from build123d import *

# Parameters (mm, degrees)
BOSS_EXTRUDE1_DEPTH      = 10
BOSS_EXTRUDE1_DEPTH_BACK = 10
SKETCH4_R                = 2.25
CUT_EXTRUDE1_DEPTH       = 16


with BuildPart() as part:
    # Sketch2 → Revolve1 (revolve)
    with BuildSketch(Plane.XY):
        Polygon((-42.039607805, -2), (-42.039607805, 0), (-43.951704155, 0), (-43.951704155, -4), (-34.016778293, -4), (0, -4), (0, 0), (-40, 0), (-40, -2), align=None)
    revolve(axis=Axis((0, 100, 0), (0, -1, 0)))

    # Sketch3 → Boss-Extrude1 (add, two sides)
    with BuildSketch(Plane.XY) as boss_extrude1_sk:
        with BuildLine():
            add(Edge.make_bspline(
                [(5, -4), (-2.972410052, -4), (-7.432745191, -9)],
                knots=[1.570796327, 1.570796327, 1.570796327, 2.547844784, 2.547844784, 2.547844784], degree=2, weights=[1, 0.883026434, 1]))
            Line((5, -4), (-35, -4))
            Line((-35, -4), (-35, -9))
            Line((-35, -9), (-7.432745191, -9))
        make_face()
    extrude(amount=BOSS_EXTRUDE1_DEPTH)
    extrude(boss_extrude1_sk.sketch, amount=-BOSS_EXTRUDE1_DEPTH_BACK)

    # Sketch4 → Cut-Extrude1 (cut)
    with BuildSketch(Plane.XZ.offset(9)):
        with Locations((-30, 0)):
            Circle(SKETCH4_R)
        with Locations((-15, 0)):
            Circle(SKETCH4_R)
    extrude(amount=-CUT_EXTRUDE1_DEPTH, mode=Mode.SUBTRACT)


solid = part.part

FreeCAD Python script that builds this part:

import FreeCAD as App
import Part
import Sketcher
from FreeCAD import Vector

doc = App.newDocument("Part")
body = doc.addObject("PartDesign::Body", "Body")

# Sketch on XY plane
sketch1 = body.newObject("Sketcher::SketchObject", "Sketch")
sketch1.AttachmentSupport = (doc.getObject("XY_Plane"), [""])
sketch1.MapMode = "FlatFace"
sketch1.addGeometry(Part.LineSegment(Vector(-42.039608, -2, 0), Vector(-42.039608, 0, 0)), False)
sketch1.addGeometry(Part.LineSegment(Vector(-42.039608, 0, 0), Vector(-43.951704, 0, 0)), False)
sketch1.addGeometry(Part.LineSegment(Vector(-43.951704, 0, 0), Vector(-43.951704, -4, 0)), False)
sketch1.addGeometry(Part.LineSegment(Vector(-43.951704, -4, 0), Vector(0, -4, 0)), False)
sketch1.addGeometry(Part.LineSegment(Vector(0, -4, 0), Vector(0, 0, 0)), False)
sketch1.addGeometry(Part.LineSegment(Vector(0, 0, 0), Vector(-40, 0, 0)), False)
sketch1.addGeometry(Part.LineSegment(Vector(-40, 0, 0), Vector(-40, -2, 0)), False)
sketch1.addGeometry(Part.LineSegment(Vector(-40, -2, 0), Vector(-42.039608, -2, 0)), False)
sketch1.addConstraint(Sketcher.Constraint("Coincident", 0, 2, 1, 1))
sketch1.addConstraint(Sketcher.Constraint("Coincident", 1, 2, 2, 1))
sketch1.addConstraint(Sketcher.Constraint("Coincident", 2, 2, 3, 1))
sketch1.addConstraint(Sketcher.Constraint("Coincident", 3, 2, 4, 1))
sketch1.addConstraint(Sketcher.Constraint("Coincident", 4, 2, 5, 1))
sketch1.addConstraint(Sketcher.Constraint("Coincident", 5, 2, 6, 1))
sketch1.addConstraint(Sketcher.Constraint("Coincident", 6, 2, 7, 1))
sketch1.addConstraint(Sketcher.Constraint("Coincident", 7, 2, 0, 1))
sketch1.addConstraint(Sketcher.Constraint("Vertical", 0))
sketch1.addConstraint(Sketcher.Constraint("Horizontal", 1))
sketch1.addConstraint(Sketcher.Constraint("Vertical", 2))
sketch1.addConstraint(Sketcher.Constraint("Horizontal", 3))
sketch1.addConstraint(Sketcher.Constraint("Vertical", 4))
sketch1.addConstraint(Sketcher.Constraint("Horizontal", 5))
sketch1.addConstraint(Sketcher.Constraint("Vertical", 6))
sketch1.addConstraint(Sketcher.Constraint("Horizontal", 7))
sketch1.addConstraint(Sketcher.Constraint("Coincident", 4, 2, -1, 1))
sketch1.addConstraint(Sketcher.Constraint("PointOnObject", 0, 2, -1))
sketch1.addConstraint(Sketcher.Constraint("DistanceX", 5, 2, 5, 1, 40.0))
sketch1.addConstraint(Sketcher.Constraint("DistanceY", 0, 1, 0, 2, 2.0))
sketch1.addConstraint(Sketcher.Constraint("DistanceY", 2, 2, 2, 1, 4.0))
sketch1.addConstraint(Sketcher.Constraint("DistanceX", 1, 2, 1, 1, 1.912096))
sketch1.addConstraint(Sketcher.Constraint("DistanceX", 3, 1, 3, 2, 43.951704))
revolution = body.newObject("PartDesign::Revolution", "Revolution")
revolution.Profile = sketch1
revolution.ReferenceAxis = (sketch1, ["V_Axis"])
revolution.Angle = 360

# Sketch on XY plane
sketch2 = body.newObject("Sketcher::SketchObject", "Sketch001")
sketch2.AttachmentSupport = (doc.getObject("XY_Plane"), [""])
sketch2.MapMode = "FlatFace"
sketch2.addGeometry(Part.BSplineCurve([Vector(5, -4, 0), Vector(-2.97241, -4, 0), Vector(-7.432745, -9, 0)], [3, 3], [1.570796327, 2.547844784], False, 2, [1, 0.883026434, 1], False), False)
sketch2.addGeometry(Part.LineSegment(Vector(5, -4, 0), Vector(-35, -4, 0)), False)
sketch2.addGeometry(Part.LineSegment(Vector(-35, -4, 0), Vector(-35, -9, 0)), False)
sketch2.addGeometry(Part.LineSegment(Vector(-35, -9, 0), Vector(-7.432745, -9, 0)), False)
sketch2.addConstraint(Sketcher.Constraint("Block", 0))
sketch2.addConstraint(Sketcher.Constraint("Coincident", 0, 1, 1, 1))
sketch2.addConstraint(Sketcher.Constraint("Coincident", 1, 2, 2, 1))
sketch2.addConstraint(Sketcher.Constraint("Coincident", 2, 2, 3, 1))
sketch2.addConstraint(Sketcher.Constraint("Coincident", 3, 2, 0, 2))
sketch2.addConstraint(Sketcher.Constraint("Horizontal", 1))
sketch2.addConstraint(Sketcher.Constraint("Vertical", 2))
sketch2.addConstraint(Sketcher.Constraint("Horizontal", 3))
sketch2.addConstraint(Sketcher.Constraint("DistanceX", 1, 2, 1, 1, 40.0))
pad1 = body.newObject("PartDesign::Pad", "Pad")
pad1.Profile = sketch2
pad1.Type = "TwoLengths"
pad1.Length = 10
pad1.Length2 = 10

# Sketch on XZ plane
sketch3 = body.newObject("Sketcher::SketchObject", "Sketch002")
sketch3.AttachmentSupport = (doc.getObject("XZ_Plane"), [""])
sketch3.MapMode = "FlatFace"
sketch3.AttachmentOffset = App.Placement(Vector(0, 0, 9), App.Rotation())
sketch3.addGeometry(Part.Circle(Vector(-30, 0, 0), Vector(0, 0, 1), 2.25), False)
sketch3.addGeometry(Part.Circle(Vector(-15, 0, 0), Vector(0, 0, 1), 2.25), False)
sketch3.addConstraint(Sketcher.Constraint("Equal", 0, 1))
sketch3.addConstraint(Sketcher.Constraint("PointOnObject", 0, 3, -1))
sketch3.addConstraint(Sketcher.Constraint("PointOnObject", 1, 3, -1))
sketch3.addConstraint(Sketcher.Constraint("Diameter", 0, 4.5))
sketch3.addConstraint(Sketcher.Constraint("DistanceX", 0, 3, -1, 1, 30.0))
sketch3.addConstraint(Sketcher.Constraint("DistanceX", 1, 3, -1, 1, 15.0))
pocket1 = body.newObject("PartDesign::Pocket", "Pocket")
pocket1.Profile = sketch3
pocket1.Length = 16

doc.recompute()
